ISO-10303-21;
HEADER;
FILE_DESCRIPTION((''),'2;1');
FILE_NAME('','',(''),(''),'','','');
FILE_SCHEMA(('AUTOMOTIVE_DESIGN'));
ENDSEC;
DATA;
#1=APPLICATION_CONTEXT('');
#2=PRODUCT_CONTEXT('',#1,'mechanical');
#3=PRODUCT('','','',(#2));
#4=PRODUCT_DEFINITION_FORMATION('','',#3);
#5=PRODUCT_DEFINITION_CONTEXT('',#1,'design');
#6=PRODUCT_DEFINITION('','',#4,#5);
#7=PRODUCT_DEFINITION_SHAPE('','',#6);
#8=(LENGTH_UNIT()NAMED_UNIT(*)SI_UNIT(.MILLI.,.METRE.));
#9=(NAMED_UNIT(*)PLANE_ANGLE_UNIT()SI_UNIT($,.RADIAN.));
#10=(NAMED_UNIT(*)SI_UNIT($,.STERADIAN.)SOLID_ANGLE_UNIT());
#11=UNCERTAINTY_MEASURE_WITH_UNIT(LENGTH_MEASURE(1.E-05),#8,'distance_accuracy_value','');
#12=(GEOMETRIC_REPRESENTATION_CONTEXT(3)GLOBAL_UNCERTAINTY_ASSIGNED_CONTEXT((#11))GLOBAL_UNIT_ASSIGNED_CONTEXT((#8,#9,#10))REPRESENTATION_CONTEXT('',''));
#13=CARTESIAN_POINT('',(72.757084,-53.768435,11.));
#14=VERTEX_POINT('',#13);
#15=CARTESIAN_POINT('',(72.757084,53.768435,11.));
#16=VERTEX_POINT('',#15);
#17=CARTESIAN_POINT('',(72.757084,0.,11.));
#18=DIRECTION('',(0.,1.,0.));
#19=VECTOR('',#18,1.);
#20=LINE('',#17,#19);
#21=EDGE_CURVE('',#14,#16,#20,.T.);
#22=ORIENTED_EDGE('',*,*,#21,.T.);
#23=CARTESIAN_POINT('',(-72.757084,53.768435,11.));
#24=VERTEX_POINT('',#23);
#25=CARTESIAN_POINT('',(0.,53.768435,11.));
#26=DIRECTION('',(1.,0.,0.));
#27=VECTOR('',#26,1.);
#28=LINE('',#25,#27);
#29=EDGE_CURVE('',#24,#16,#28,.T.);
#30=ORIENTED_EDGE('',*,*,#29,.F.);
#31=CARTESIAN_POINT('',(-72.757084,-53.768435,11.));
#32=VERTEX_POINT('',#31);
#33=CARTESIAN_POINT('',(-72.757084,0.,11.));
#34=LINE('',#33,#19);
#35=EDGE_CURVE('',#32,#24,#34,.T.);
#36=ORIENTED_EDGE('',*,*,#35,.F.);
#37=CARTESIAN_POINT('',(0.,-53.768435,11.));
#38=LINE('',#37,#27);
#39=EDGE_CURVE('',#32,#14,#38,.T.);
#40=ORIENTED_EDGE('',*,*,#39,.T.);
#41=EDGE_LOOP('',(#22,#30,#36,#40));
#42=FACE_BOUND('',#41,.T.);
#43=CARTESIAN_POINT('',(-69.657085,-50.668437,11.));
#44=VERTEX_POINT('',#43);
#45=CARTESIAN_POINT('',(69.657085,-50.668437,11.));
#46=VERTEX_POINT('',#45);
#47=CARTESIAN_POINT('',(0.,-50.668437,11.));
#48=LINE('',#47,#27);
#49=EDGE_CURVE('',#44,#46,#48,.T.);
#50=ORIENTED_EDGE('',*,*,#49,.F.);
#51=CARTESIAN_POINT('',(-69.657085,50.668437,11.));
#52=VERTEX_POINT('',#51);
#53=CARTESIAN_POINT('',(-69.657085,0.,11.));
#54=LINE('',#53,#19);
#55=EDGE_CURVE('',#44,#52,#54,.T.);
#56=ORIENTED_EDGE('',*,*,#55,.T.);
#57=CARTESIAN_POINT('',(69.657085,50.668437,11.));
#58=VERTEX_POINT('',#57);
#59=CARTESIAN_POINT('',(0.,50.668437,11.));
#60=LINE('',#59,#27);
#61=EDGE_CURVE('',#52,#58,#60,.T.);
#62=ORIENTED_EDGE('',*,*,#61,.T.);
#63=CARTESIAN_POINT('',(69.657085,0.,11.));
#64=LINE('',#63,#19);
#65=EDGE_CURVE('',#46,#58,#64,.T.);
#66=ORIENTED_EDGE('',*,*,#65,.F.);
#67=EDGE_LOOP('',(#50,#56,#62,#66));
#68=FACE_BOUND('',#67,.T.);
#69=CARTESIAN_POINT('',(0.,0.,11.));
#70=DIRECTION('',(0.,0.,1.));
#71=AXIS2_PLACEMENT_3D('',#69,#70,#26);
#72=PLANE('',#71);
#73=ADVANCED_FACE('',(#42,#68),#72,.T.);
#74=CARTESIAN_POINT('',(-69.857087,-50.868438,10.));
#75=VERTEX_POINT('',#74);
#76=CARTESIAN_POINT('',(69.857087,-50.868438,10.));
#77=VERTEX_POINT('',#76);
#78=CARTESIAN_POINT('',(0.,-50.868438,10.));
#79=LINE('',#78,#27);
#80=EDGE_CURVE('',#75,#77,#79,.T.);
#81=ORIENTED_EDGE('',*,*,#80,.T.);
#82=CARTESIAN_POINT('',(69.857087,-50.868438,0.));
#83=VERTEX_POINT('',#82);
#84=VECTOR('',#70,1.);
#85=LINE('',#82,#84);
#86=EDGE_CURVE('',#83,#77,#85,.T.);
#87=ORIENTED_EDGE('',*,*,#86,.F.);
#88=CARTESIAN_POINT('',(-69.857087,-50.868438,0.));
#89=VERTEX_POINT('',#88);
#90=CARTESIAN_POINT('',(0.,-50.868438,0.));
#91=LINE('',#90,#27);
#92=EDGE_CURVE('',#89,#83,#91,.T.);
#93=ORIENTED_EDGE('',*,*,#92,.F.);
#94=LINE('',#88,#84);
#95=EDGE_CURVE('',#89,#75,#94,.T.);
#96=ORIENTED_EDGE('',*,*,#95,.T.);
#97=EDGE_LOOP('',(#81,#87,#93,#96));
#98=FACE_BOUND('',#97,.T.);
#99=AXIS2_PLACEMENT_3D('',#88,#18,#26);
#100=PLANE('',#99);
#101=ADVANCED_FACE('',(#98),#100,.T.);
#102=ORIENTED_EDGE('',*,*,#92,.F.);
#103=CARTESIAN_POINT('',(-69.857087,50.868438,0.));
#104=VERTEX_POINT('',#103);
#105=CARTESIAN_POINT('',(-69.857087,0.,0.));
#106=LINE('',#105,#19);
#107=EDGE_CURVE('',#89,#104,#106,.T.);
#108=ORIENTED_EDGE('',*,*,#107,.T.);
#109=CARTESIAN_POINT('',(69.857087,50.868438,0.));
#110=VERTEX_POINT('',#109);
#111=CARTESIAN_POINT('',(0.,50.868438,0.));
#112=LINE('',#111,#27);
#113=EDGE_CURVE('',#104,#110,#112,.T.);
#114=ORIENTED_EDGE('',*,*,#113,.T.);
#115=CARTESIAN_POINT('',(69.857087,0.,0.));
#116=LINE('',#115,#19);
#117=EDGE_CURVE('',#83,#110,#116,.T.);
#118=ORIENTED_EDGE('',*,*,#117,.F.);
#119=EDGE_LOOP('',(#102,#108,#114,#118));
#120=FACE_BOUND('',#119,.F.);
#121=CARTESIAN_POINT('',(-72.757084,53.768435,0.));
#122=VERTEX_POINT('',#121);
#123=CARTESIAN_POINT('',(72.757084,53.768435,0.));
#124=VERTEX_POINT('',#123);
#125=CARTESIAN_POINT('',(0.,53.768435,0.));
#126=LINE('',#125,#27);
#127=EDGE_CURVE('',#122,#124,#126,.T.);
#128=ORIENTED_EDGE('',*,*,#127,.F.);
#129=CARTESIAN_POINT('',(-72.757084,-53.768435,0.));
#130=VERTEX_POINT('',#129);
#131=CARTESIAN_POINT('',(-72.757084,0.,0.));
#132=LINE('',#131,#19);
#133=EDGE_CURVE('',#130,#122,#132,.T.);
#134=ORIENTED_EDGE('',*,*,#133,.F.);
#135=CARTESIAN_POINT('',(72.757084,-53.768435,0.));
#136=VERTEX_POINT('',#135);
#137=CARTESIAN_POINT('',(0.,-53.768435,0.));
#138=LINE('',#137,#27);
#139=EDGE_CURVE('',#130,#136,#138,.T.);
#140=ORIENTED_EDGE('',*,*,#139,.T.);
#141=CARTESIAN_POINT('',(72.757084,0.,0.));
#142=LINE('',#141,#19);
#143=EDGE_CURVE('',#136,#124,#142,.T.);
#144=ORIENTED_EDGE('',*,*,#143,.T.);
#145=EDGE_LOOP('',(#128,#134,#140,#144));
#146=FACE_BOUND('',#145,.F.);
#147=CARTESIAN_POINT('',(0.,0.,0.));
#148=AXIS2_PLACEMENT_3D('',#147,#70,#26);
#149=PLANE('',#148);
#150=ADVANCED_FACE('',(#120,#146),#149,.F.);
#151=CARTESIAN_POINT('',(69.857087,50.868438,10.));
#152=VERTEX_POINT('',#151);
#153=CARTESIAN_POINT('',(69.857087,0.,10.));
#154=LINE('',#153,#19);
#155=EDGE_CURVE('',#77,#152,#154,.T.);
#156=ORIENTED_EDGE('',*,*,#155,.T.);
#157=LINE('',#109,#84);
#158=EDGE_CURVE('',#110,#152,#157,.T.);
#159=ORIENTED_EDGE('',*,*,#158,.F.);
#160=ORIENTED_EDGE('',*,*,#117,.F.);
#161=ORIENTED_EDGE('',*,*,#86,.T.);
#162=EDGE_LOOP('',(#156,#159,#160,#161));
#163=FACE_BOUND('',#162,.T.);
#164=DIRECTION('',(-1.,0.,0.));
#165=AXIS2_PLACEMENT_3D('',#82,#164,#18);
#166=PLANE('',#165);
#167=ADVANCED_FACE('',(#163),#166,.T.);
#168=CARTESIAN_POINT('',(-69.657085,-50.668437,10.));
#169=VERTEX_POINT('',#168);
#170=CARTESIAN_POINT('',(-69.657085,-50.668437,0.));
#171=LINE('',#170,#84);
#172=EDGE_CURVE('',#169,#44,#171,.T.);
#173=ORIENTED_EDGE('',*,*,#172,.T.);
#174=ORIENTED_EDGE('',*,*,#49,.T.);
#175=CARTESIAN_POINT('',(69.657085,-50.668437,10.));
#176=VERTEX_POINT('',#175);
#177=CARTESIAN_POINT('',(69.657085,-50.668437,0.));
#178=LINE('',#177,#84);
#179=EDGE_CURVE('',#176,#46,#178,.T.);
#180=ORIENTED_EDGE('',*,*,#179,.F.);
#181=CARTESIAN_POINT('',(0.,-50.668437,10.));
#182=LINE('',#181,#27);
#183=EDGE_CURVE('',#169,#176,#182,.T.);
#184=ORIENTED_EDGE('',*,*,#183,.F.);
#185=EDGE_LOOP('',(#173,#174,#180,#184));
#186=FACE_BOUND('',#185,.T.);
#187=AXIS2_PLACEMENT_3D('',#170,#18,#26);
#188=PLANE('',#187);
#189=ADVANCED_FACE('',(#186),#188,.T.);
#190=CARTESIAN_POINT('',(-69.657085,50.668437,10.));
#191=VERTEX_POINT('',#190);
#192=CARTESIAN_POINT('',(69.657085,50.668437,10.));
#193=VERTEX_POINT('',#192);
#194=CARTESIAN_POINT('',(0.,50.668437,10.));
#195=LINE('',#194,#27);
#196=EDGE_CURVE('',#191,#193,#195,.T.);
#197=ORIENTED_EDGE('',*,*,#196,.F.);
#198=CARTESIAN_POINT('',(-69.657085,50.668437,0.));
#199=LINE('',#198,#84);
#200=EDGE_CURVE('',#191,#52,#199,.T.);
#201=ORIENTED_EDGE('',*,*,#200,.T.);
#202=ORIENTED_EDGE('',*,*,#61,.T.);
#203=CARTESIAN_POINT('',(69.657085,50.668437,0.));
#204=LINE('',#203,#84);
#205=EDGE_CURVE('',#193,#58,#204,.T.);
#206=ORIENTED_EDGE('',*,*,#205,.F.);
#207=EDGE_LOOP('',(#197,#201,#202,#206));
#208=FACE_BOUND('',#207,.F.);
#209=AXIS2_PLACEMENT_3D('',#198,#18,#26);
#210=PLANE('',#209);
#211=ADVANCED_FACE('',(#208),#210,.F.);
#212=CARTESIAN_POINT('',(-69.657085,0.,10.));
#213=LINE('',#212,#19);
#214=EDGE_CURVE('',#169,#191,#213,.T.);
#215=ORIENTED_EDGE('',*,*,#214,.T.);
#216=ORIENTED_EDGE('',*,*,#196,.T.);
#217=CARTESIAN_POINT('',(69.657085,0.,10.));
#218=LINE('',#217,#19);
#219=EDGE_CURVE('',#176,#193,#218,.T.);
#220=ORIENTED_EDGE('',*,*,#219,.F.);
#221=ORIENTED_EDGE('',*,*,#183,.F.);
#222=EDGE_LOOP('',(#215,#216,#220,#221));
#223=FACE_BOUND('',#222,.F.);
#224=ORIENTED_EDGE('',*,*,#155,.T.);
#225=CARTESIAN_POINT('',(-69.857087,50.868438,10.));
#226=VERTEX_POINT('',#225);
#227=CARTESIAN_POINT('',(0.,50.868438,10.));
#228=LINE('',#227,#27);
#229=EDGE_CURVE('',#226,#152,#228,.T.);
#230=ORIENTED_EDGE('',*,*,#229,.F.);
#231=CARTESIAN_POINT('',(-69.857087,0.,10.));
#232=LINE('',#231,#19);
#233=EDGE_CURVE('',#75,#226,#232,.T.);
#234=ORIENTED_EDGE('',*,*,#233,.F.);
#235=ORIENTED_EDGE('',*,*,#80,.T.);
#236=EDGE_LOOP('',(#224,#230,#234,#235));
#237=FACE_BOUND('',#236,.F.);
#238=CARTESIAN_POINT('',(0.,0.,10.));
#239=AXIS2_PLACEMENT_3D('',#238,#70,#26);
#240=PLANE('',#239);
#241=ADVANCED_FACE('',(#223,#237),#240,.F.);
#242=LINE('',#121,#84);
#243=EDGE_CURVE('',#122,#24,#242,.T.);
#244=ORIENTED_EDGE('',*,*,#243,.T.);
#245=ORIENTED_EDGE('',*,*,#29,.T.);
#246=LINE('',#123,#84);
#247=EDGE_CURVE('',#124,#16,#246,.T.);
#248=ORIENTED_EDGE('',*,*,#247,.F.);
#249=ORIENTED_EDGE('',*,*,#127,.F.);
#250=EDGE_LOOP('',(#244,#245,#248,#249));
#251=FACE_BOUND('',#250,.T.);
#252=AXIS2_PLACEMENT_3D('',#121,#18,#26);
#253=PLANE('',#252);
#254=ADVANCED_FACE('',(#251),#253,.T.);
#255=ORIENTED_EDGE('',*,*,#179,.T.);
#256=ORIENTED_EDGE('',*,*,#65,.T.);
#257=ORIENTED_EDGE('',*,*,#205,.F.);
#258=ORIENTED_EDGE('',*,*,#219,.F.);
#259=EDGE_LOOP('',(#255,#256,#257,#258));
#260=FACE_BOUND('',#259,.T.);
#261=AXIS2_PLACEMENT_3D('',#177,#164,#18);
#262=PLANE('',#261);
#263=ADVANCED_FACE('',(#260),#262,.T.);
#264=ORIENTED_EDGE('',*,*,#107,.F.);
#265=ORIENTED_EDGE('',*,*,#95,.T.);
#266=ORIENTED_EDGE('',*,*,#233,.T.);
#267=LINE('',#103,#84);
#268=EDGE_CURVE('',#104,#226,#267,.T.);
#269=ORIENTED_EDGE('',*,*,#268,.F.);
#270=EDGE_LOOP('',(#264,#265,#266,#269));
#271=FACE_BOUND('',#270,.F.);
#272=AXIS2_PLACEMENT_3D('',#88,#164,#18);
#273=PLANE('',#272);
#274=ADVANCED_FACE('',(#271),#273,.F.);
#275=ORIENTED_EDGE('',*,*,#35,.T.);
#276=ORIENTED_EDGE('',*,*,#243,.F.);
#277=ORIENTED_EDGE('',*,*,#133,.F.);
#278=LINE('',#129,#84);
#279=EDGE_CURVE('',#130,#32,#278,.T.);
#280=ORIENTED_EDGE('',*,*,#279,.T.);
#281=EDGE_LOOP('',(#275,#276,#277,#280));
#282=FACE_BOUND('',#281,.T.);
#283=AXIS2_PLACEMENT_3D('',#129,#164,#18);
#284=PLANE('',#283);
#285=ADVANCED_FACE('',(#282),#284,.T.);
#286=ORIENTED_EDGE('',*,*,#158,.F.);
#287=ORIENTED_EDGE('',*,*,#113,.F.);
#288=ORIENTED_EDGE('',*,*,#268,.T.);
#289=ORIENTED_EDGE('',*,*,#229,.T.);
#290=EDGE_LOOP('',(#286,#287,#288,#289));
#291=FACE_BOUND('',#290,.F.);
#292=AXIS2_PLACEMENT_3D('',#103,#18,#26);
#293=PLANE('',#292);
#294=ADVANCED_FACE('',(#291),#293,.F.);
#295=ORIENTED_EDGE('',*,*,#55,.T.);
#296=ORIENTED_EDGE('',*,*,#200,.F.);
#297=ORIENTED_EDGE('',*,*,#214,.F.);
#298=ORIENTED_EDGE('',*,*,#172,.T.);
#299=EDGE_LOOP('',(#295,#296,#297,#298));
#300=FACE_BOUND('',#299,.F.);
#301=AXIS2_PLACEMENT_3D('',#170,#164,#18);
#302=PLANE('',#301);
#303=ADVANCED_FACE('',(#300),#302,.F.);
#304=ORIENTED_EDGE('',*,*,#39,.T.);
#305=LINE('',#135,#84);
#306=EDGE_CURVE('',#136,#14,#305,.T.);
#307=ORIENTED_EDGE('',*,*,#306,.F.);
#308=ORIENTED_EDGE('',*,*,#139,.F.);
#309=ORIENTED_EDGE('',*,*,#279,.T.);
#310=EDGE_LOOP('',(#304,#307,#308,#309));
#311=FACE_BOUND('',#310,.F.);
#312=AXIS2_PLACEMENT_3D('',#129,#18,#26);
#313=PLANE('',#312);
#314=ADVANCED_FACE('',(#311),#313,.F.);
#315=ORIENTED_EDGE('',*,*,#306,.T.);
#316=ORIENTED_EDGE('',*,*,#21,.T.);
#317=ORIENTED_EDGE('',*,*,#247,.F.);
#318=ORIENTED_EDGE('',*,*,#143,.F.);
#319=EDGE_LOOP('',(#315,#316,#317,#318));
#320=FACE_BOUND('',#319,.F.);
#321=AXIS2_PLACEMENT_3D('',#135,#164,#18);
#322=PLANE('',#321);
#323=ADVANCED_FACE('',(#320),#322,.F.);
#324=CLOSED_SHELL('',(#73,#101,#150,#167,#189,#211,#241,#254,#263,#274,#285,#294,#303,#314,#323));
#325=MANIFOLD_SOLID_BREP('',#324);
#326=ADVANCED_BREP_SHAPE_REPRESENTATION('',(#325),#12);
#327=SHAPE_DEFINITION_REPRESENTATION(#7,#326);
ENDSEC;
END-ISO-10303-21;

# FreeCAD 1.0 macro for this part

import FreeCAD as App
import Part
import Sketcher
Q = App.Units.Quantity

doc = App.newDocument("Part")
body = doc.addObject("PartDesign::Body", "Body")

# Sketch on XY plane
sketch1 = body.newObject("Sketcher::SketchObject", "Sketch")
sketch1.AttachmentSupport = (doc.getObject("XY_Plane"), [""])
sketch1.MapMode = "FlatFace"
sketch1.addGeometry([
    Part.LineSegment(App.Vector(-73, 54, 0), App.Vector(-73, -54, 0)),  # 0
    Part.LineSegment(App.Vector(-73, -54, 0), App.Vector(73, -54, 0)),  # 1
    Part.LineSegment(App.Vector(73, -54, 0), App.Vector(73, 54, 0)),  # 2
    Part.LineSegment(App.Vector(73, 54, 0), App.Vector(-73, 54, 0)),  # 3
    Part.LineSegment(App.Vector(70, -51, 0), App.Vector(-70, -51, 0)),  # 4
    Part.LineSegment(App.Vector(-70, -51, 0), App.Vector(-70, 51, 0)),  # 5
    Part.LineSegment(App.Vector(-70, 51, 0), App.Vector(70, 51, 0)),  # 6
    Part.LineSegment(App.Vector(70, 51, 0), App.Vector(70, -51, 0)),  # 7
], False)
sketch1.addConstraint([
    Sketcher.Constraint("Coincident", 0, 2, 1, 1),
    Sketcher.Constraint("Coincident", 1, 2, 2, 1),
    Sketcher.Constraint("Coincident", 2, 2, 3, 1),
    Sketcher.Constraint("Coincident", 3, 2, 0, 1),
    Sketcher.Constraint("Coincident", 4, 2, 5, 1),
    Sketcher.Constraint("Coincident", 5, 2, 6, 1),
    Sketcher.Constraint("Coincident", 6, 2, 7, 1),
    Sketcher.Constraint("Coincident", 7, 2, 4, 1),
    Sketcher.Constraint("Vertical", 0),
    Sketcher.Constraint("Horizontal", 1),
    Sketcher.Constraint("Vertical", 2),
    Sketcher.Constraint("Horizontal", 3),
    Sketcher.Constraint("Horizontal", 4),
    Sketcher.Constraint("Vertical", 5),
    Sketcher.Constraint("Horizontal", 6),
    Sketcher.Constraint("Vertical", 7),
    Sketcher.Constraint("Symmetric", 0, 2, 2, 2, -1, 1),
    Sketcher.Constraint("Symmetric", 4, 2, 6, 2, -1, 1),
    Sketcher.Constraint("DistanceX", 0, 2, 4, 2, Q("3.099999 mm")),
    Sketcher.Constraint("DistanceX", 1, 1, 1, 2, Q("145.514168 mm")),
    Sketcher.Constraint("DistanceY", 0, 2, 0, 1, Q("107.53687 mm")),
    Sketcher.Constraint("DistanceY", 5, 1, 5, 2, Q("101.336874 mm")),
])
pad1 = body.newObject("PartDesign::Pad", "Pad")
pad1.Profile = sketch1
pad1.Length = 11

# Sketch on XY plane
sketch2 = body.newObject("Sketcher::SketchObject", "Sketch001")
sketch2.AttachmentSupport = (doc.getObject("XY_Plane"), [""])
sketch2.MapMode = "FlatFace"
sketch2.addGeometry([
    Part.LineSegment(App.Vector(-70, 51, 0), App.Vector(-70, -51, 0)),  # 0
    Part.LineSegment(App.Vector(-70, -51, 0), App.Vector(70, -51, 0)),  # 1
    Part.LineSegment(App.Vector(70, -51, 0), App.Vector(70, 51, 0)),  # 2
    Part.LineSegment(App.Vector(70, 51, 0), App.Vector(-70, 51, 0)),  # 3
    Part.LineSegment(App.Vector(70, -51, 0), App.Vector(-70, -51, 0)),  # 4
    Part.LineSegment(App.Vector(-70, -51, 0), App.Vector(-70, 51, 0)),  # 5
    Part.LineSegment(App.Vector(-70, 51, 0), App.Vector(70, 51, 0)),  # 6
    Part.LineSegment(App.Vector(70, 51, 0), App.Vector(70, -51, 0)),  # 7
], False)
sketch2.addConstraint([
    Sketcher.Constraint("Coincident", 0, 2, 1, 1),
    Sketcher.Constraint("Coincident", 1, 2, 2, 1),
    Sketcher.Constraint("Coincident", 2, 2, 3, 1),
    Sketcher.Constraint("Coincident", 3, 2, 0, 1),
    Sketcher.Constraint("Coincident", 4, 2, 5, 1),
    Sketcher.Constraint("Coincident", 5, 2, 6, 1),
    Sketcher.Constraint("Coincident", 6, 2, 7, 1),
    Sketcher.Constraint("Coincident", 7, 2, 4, 1),
    Sketcher.Constraint("Vertical", 0),
    Sketcher.Constraint("Horizontal", 1),
    Sketcher.Constraint("Vertical", 2),
    Sketcher.Constraint("Horizontal", 3),
    Sketcher.Constraint("Horizontal", 4),
    Sketcher.Constraint("Vertical", 5),
    Sketcher.Constraint("Horizontal", 6),
    Sketcher.Constraint("Vertical", 7),
    Sketcher.Constraint("Symmetric", 0, 2, 2, 2, -1, 1),
    Sketcher.Constraint("Symmetric", 4, 2, 6, 2, -1, 1),
    Sketcher.Constraint("DistanceY", 0, 2, 4, 2, Q("0.200001 mm")),
    Sketcher.Constraint("DistanceX", 4, 2, 4, 1, Q("139.31417 mm")),
    Sketcher.Constraint("DistanceX", 1, 1, 1, 2, Q("139.714174 mm")),
    Sketcher.Constraint("DistanceY", 0, 2, 0, 1, Q("101.736876 mm")),
])
pocket1 = body.newObject("PartDesign::Pocket", "Pocket")
pocket1.Profile = sketch2
pocket1.Length = 10
pocket1.Reversed = True

doc.recompute()
